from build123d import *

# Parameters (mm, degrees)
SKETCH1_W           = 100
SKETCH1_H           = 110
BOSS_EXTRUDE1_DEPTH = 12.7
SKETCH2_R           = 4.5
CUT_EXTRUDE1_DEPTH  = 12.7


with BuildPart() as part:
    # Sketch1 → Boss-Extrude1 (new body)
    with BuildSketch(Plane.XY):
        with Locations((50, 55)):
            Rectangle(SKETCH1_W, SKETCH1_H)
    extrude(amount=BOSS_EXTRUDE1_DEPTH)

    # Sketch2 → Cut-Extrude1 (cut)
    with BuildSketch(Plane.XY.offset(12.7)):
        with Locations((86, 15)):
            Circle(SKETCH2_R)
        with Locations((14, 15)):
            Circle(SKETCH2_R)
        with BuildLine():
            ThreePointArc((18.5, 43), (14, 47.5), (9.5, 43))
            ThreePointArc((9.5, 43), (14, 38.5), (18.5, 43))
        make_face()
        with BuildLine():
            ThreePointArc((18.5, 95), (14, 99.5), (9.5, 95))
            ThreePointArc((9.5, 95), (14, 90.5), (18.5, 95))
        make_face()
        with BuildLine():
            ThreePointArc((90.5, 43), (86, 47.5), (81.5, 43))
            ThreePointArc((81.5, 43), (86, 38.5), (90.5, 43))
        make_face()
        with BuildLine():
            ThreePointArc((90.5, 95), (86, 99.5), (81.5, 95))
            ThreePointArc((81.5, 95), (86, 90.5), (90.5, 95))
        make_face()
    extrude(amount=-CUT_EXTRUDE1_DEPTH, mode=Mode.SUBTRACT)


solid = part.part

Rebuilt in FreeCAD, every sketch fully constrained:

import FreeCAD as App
import Part
import Sketcher

V = App.Vector

doc = App.newDocument("Part")
params = doc.addObject("Spreadsheet::Sheet", "Params")
for row, (alias, value) in enumerate([
    ("sketch1_width", "100 mm"),
    ("sketch1_height", "110 mm"),
    ("pad1_length", "12.7 mm"),
    ("sketch2_diameter", "9 mm"),
    ("pocket1_length", "12.7 mm"),
], start=1):
    params.set(f"A{row}", alias)
    params.set(f"B{row}", "=" + value)
    params.setAlias(f"B{row}", alias)

body = doc.addObject("PartDesign::Body", "Body")

# Sketch on XY plane
sketch1 = doc.addObject("Sketcher::SketchObject", "Sketch")
body.addObject(sketch1)
sketch1.AttachmentSupport = (doc.XY_Plane, [""])
sketch1.MapMode = "FlatFace"
sketch1.addGeometry([
    Part.LineSegment(V(0, 110, 0), V(0, 0, 0)),
    Part.LineSegment(V(0, 0, 0), V(100, 0, 0)),
    Part.LineSegment(V(100, 0, 0), V(100, 110, 0)),
    Part.LineSegment(V(100, 110, 0), V(0, 110, 0)),
], False)
sketch1.addConstraint([
    Sketcher.Constraint("Coincident", 0, 2, 1, 1),
    Sketcher.Constraint("Coincident", 1, 2, 2, 1),
    Sketcher.Constraint("Coincident", 2, 2, 3, 1),
    Sketcher.Constraint("Coincident", 3, 2, 0, 1),
    Sketcher.Constraint("Vertical", 0),
    Sketcher.Constraint("Horizontal", 1),
    Sketcher.Constraint("Vertical", 2),
    Sketcher.Constraint("Horizontal", 3),
    Sketcher.Constraint("Coincident", 0, 2, -1, 1),
    Sketcher.Constraint("DistanceX", 1, 1, 1, 2, 100.0),
    Sketcher.Constraint("DistanceY", 0, 2, 0, 1, 110.0),
])
sketch1.setExpression("Constraints[9]", "Params.sketch1_width")
sketch1.setExpression("Constraints[10]", "Params.sketch1_height")
pad1 = doc.addObject("PartDesign::Pad", "Pad")
body.addObject(pad1)
pad1.Profile = sketch1
pad1.setExpression("Length", "Params.pad1_length")

# Sketch on XY plane
sketch2 = doc.addObject("Sketcher::SketchObject", "Sketch001")
body.addObject(sketch2)
sketch2.AttachmentSupport = (doc.XY_Plane, [""])
sketch2.MapMode = "FlatFace"
sketch2.AttachmentOffset = App.Placement(V(0, 0, 12.7), App.Rotation())
sketch2.addGeometry([
    Part.Circle(V(86, 15, 0), V(0, 0, 1), 4.5),  # 0
    Part.Circle(V(14, 15, 0), V(0, 0, 1), 4.5),  # 1
    Part.Circle(V(14, 43, 0), V(0, 0, 1), 4.5),  # 2
    Part.Circle(V(14, 95, 0), V(0, 0, 1), 4.5),  # 3
    Part.Circle(V(86, 43, 0), V(0, 0, 1), 4.5),  # 4
    Part.Circle(V(86, 95, 0), V(0, 0, 1), 4.5),  # 5
], False)
sketch2.addConstraint([
    Sketcher.Constraint("Equal", 0, 1),
    Sketcher.Constraint("Equal", 1, 2),
    Sketcher.Constraint("Equal", 2, 3),
    Sketcher.Constraint("Equal", 3, 4),
    Sketcher.Constraint("Equal", 4, 5),
    Sketcher.Constraint("Horizontal", 0, 3, 1, 3),
    Sketcher.Constraint("Horizontal", 2, 3, 4, 3),
    Sketcher.Constraint("Horizontal", 3, 3, 5, 3),
    Sketcher.Constraint("Vertical", 1, 3, 2, 3),
    Sketcher.Constraint("Vertical", 2, 3, 3, 3),
    Sketcher.Constraint("Vertical", 0, 3, 4, 3),
    Sketcher.Constraint("Vertical", 4, 3, 5, 3),
    Sketcher.Constraint("Diameter", 0, 9.0),
    Sketcher.Constraint("DistanceX", -1, 1, 0, 3, 86.0),
    Sketcher.Constraint("DistanceY", -1, 1, 0, 3, 15.0),
    Sketcher.Constraint("DistanceX", -1, 1, 1, 3, 14.0),
    Sketcher.Constraint("DistanceY", -1, 1, 2, 3, 43.0),
    Sketcher.Constraint("DistanceY", -1, 1, 3, 3, 95.0),
])
sketch2.setExpression("Constraints[12]", "Params.sketch2_diameter")
pocket1 = doc.addObject("PartDesign::Pocket", "Pocket")
body.addObject(pocket1)
pocket1.Profile = sketch2
pocket1.setExpression("Length", "Params.pocket1_length")

doc.recompute()
